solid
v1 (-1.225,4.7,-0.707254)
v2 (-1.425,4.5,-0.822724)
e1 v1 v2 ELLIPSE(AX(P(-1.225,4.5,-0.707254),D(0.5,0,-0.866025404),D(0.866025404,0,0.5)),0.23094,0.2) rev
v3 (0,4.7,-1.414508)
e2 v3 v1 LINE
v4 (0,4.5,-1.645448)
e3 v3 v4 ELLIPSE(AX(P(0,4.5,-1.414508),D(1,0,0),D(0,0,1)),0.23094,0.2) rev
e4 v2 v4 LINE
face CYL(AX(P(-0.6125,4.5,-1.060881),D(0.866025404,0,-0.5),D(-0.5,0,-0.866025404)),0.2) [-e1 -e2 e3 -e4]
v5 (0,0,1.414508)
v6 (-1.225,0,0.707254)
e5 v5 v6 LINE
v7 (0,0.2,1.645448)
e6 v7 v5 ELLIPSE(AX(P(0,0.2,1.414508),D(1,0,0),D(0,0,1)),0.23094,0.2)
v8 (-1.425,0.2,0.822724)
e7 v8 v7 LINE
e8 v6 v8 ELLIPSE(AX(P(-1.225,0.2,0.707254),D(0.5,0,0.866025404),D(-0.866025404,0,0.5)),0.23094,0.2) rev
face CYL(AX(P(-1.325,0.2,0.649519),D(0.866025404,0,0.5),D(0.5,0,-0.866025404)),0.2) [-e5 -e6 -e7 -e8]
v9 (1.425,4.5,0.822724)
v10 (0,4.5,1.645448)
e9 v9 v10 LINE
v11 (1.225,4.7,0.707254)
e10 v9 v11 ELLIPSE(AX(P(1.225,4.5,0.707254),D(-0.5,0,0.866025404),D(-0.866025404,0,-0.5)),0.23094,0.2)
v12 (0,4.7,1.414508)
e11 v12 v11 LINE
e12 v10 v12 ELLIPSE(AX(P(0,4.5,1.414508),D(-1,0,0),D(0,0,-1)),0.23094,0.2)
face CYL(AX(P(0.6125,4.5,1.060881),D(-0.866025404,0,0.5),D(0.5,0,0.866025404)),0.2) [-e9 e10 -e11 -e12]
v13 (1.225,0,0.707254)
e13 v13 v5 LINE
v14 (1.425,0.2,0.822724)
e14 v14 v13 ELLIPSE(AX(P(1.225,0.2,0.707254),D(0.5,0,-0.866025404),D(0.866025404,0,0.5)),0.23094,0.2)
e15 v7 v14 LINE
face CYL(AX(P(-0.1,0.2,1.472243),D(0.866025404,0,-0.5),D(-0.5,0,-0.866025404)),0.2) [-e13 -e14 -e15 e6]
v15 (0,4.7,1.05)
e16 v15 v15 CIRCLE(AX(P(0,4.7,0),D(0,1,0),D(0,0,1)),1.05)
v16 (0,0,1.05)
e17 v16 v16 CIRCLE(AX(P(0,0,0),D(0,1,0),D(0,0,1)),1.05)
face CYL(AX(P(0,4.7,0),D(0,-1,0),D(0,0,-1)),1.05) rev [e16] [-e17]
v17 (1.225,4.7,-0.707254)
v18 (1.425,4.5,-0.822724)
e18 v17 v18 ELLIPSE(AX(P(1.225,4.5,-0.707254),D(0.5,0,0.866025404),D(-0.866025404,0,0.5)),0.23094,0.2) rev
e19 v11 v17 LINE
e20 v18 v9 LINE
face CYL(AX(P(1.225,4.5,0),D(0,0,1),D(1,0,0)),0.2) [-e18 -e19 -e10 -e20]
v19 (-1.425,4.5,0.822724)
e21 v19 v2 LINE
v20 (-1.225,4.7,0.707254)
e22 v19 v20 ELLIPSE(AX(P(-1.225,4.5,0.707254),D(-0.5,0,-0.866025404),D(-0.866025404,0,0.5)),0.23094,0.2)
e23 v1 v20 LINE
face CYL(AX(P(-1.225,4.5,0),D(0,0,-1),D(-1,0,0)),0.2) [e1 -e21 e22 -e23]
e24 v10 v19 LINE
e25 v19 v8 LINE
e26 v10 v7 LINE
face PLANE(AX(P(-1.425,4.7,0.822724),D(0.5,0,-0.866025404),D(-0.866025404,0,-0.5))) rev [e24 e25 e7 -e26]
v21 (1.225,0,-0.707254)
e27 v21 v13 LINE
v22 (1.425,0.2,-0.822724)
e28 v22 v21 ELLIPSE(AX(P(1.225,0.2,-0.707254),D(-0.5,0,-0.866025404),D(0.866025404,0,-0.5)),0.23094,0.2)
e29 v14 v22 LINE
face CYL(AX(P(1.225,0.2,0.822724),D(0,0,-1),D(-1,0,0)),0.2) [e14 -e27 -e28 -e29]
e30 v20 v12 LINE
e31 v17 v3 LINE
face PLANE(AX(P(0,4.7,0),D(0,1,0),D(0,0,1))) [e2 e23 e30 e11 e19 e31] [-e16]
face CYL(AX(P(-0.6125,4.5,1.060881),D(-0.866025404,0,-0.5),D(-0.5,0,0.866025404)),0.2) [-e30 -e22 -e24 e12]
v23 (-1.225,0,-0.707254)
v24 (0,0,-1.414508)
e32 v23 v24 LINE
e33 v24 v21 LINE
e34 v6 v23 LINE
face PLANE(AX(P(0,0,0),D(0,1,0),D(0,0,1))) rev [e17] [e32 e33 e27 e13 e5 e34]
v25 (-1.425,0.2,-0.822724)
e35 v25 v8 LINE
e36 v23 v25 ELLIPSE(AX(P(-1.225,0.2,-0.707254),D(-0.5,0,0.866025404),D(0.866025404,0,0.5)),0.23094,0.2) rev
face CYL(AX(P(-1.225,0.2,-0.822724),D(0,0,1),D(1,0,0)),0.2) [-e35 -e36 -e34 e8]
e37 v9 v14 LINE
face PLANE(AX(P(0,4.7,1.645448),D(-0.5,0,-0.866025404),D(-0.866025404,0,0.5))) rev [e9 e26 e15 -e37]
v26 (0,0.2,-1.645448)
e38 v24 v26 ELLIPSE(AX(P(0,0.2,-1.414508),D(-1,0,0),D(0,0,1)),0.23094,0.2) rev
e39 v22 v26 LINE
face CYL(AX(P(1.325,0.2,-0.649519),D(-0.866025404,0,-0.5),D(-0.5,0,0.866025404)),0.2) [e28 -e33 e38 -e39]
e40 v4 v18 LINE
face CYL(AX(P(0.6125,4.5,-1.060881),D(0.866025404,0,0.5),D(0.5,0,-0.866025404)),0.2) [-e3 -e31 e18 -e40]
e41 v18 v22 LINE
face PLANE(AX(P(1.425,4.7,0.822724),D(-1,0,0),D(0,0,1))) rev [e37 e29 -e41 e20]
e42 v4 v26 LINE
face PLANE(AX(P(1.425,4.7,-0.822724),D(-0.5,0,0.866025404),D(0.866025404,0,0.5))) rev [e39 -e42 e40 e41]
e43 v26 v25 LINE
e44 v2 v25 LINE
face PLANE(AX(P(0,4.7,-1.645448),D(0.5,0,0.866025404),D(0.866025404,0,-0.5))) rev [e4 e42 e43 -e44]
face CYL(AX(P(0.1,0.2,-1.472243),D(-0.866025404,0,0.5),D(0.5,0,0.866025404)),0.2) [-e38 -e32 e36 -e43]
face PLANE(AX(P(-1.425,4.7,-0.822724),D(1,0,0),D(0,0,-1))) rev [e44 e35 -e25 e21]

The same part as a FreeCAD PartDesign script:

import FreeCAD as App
import Part
import Sketcher
from FreeCAD import Vector
Q = App.Units.Quantity


def edges_at(feature, points):
    """Names of the edges that pass closest to the given points."""
    edges = feature.Shape.Edges
    near = lambda p: min(range(len(edges)), key=lambda i: edges[i].distToShape(Part.Vertex(*p))[0])
    return sorted({f"Edge{near(p) + 1}" for p in points})


def add_polygon(sketch, points):
    """Adds a closed chain of lines whose ends are joined by coincident constraints."""
    first, n = sketch.GeometryCount, len(points)
    for a, b in zip(points, points[1:] + points[:1]):
        sketch.addGeometry(Part.LineSegment(App.Vector(*a, 0), App.Vector(*b, 0)), False)
    for i in range(n):
        sketch.addConstraint(Sketcher.Constraint("Coincident", first + i, 2, first + (i + 1) % n, 1))

doc = App.newDocument("Part")
params = doc.addObject("Spreadsheet::Sheet", "Params")
for row, (alias, value) in enumerate([
    ("sketch1_diameter", "2.1 mm"),
    ("pad1_length", "4.7 mm"),
    ("fillet_radius", "0.2 mm"),
], start=1):
    params.set(f"A{row}", alias)
    params.set(f"B{row}", "=" + value)
    params.setAlias(f"B{row}", alias)

body = doc.addObject("PartDesign::Body", "Body")

sketch1 = doc.addObject("Sketcher::SketchObject", "Sketch")
body.addObject(sketch1)
sketch1.AttachmentSupport = (doc.XZ_Plane, [""])
sketch1.MapMode = "FlatFace"
add_polygon(sketch1, [(1.425, -0.822724), (0, -1.645448), (-1.425, -0.822724), (-1.425, 0.822724), (0, 1.645448), (1.425, 0.822724)])
sketch1.addGeometry(Part.Circle(Vector(0, 0, 0), Vector(0, 0, 1), 1.05), False)
sketch1.addConstraint([
    Sketcher.Constraint("Vertical", 2),
    Sketcher.Constraint("Vertical", 5),
    Sketcher.Constraint("Coincident", 6, 3, -1, 1),
    Sketcher.Constraint("Symmetric", 0, 2, 3, 2, -1, 1),
    Sketcher.Constraint("Symmetric", 1, 2, 4, 2, -1, 1),
    Sketcher.Constraint("PointOnObject", 0, 2, -2),
    Sketcher.Constraint("Parallel", 0, 3),
    Sketcher.Constraint("Horizontal", 2, 2, 4, 2),
    Sketcher.Constraint("Diameter", 6, 2.1),
    Sketcher.Constraint("Angle", 0, Q("-150 deg")),
    Sketcher.Constraint("DistanceX", 2, 2, 4, 2, 2.85),
    Sketcher.Constraint("DistanceY", 2, 1, 2, 2, 1.645448),
])
sketch1.setExpression("Constraints[14]", "Params.sketch1_diameter")
pad1 = doc.addObject("PartDesign::Pad", "Pad")
body.addObject(pad1)
pad1.Profile = sketch1
pad1.setExpression("Length", "Params.pad1_length")
pad1.Reversed = True
doc.recompute()

fillet = doc.addObject("PartDesign::Fillet", "Fillet")
body.addObject(fillet)
fillet.Base = (pad1, edges_at(pad1, [
    (-0.713, 4.7, -1.234),
    (-1.425, 4.7, 0),
    (-0.713, 4.7, 1.234),
    (0.713, 4.7, 1.234),
    (1.425, 4.7, 0),
    (0.713, 0, 1.234),
    (-0.713, 0, 1.234),
    (-1.425, 0, 0),
    (-0.713, 0, -1.234),
    (0.713, 0, -1.234),
    (1.425, 0, 0),
    (0.713, 4.7, -1.234),
]))
fillet.setExpression("Radius", "Params.fillet_radius")

doc.recompute()
